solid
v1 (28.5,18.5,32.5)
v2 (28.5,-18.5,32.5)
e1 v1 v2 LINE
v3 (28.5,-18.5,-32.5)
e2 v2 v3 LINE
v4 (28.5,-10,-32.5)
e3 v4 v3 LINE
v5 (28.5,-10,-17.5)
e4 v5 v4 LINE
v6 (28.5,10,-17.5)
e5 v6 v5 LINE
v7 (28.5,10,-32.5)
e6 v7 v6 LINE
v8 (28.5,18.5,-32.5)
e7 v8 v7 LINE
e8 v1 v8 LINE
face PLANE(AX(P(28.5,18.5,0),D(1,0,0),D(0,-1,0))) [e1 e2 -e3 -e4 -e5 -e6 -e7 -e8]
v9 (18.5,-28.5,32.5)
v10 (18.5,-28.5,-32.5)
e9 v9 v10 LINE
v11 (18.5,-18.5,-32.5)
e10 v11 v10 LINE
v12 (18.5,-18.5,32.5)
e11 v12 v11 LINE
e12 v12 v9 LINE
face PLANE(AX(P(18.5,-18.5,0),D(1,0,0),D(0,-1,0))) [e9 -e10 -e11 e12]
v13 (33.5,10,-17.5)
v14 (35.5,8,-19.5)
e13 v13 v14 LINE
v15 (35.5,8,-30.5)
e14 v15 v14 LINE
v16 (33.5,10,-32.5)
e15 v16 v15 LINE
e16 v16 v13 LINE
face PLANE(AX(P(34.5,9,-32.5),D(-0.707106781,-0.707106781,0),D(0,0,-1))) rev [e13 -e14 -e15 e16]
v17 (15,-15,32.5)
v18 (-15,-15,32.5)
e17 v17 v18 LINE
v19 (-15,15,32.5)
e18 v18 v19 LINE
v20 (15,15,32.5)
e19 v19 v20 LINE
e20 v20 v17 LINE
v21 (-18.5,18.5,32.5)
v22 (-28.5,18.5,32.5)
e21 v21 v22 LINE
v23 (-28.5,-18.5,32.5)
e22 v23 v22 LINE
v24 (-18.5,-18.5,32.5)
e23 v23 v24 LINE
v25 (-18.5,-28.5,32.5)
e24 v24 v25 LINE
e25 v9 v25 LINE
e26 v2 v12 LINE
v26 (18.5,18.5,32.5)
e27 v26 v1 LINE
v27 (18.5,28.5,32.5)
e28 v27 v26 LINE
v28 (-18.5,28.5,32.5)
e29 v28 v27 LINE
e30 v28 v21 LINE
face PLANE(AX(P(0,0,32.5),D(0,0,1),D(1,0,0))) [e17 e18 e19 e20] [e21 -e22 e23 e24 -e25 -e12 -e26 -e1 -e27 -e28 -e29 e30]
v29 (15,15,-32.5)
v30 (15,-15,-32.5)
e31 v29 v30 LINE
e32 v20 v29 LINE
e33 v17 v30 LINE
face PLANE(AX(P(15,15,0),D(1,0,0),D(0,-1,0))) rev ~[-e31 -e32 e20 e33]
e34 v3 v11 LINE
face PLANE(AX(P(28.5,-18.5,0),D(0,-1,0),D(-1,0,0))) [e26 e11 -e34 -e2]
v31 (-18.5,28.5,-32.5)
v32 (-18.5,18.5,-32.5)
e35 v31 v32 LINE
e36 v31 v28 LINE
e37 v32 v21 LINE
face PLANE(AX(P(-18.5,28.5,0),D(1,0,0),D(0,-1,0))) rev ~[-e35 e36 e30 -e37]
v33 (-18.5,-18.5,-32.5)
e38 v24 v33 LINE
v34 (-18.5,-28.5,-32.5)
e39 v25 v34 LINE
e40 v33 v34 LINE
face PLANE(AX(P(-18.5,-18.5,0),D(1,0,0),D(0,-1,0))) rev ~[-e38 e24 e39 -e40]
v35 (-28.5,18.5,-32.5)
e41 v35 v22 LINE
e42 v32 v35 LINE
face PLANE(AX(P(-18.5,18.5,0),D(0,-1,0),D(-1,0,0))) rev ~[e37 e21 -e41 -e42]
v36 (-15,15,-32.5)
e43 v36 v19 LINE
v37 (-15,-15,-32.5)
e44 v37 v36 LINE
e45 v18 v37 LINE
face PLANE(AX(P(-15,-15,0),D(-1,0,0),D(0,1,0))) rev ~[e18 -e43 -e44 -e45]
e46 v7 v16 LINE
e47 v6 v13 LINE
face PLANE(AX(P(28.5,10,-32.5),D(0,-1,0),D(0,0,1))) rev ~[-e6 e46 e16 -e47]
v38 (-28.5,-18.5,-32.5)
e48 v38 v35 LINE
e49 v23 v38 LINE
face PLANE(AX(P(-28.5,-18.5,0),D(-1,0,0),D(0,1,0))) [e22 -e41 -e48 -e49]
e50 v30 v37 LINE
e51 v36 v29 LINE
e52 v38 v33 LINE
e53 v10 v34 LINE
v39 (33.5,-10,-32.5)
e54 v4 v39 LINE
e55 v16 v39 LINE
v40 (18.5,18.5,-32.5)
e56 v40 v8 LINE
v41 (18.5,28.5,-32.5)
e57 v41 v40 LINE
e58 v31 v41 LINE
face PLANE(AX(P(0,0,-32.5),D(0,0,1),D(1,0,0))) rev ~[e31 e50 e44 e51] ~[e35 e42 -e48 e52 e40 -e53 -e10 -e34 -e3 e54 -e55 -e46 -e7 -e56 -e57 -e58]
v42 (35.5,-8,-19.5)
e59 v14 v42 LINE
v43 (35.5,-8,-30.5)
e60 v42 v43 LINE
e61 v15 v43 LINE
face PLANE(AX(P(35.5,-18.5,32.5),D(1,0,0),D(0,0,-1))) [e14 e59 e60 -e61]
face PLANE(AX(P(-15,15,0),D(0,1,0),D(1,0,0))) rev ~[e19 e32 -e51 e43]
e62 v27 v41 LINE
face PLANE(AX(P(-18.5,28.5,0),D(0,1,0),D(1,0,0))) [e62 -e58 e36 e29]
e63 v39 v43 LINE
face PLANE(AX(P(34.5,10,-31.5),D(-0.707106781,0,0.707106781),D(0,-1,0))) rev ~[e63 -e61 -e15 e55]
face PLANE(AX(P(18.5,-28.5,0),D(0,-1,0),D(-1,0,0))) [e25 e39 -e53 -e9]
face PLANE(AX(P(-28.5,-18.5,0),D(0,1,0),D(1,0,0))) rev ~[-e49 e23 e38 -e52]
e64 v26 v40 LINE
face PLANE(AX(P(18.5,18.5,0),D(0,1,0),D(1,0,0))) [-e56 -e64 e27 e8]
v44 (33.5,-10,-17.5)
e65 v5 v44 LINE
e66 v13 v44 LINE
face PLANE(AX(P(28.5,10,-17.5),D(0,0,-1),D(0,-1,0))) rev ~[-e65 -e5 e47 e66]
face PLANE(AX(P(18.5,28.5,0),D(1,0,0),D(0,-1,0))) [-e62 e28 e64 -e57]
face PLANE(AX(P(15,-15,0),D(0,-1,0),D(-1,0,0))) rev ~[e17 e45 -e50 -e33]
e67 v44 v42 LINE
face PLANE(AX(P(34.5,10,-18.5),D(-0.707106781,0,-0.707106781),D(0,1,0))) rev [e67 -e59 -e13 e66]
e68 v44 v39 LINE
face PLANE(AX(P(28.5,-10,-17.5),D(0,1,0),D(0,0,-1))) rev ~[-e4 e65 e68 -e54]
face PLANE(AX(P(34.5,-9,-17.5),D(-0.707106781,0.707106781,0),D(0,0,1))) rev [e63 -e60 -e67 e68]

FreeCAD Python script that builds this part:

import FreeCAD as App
import Part
import Sketcher


def edges_at(feature, points):
    """Names of the edges that pass closest to the given points."""
    edges = feature.Shape.Edges
    near = lambda p: min(range(len(edges)), key=lambda i: edges[i].distToShape(Part.Vertex(*p))[0])
    return sorted({f"Edge{near(p) + 1}" for p in points})

doc = App.newDocument("Part")
body = doc.addObject("PartDesign::Body", "Body")

sketch1 = doc.addObject("Sketcher::SketchObject", "Sketch")
body.addObject(sketch1)
sketch1.AttachmentSupport = (doc.XY_Plane, [""])
sketch1.MapMode = "FlatFace"
sketch1.addGeometry(Part.LineSegment(App.Vector(18, 28, 0), App.Vector(-18, 28, 0)), False)
sketch1.addGeometry(Part.LineSegment(App.Vector(-18, 28, 0), App.Vector(-18, 18, 0)), False)
sketch1.addGeometry(Part.LineSegment(App.Vector(-18, 18, 0), App.Vector(-28, 18, 0)), False)
sketch1.addGeometry(Part.LineSegment(App.Vector(-28, 18, 0), App.Vector(-28, -18, 0)), False)
sketch1.addGeometry(Part.LineSegment(App.Vector(-28, -18, 0), App.Vector(-18, -18, 0)), False)
sketch1.addGeometry(Part.LineSegment(App.Vector(-18, -18, 0), App.Vector(-18, -28, 0)), False)
sketch1.addGeometry(Part.LineSegment(App.Vector(-18, -28, 0), App.Vector(18, -28, 0)), False)
sketch1.addGeometry(Part.LineSegment(App.Vector(18, -28, 0), App.Vector(18, -18, 0)), False)
sketch1.addGeometry(Part.LineSegment(App.Vector(18, -18, 0), App.Vector(28, -18, 0)), False)
sketch1.addGeometry(Part.LineSegment(App.Vector(28, -18, 0), App.Vector(28, 18, 0)), False)
sketch1.addGeometry(Part.LineSegment(App.Vector(28, 18, 0), App.Vector(18, 18, 0)), False)
sketch1.addGeometry(Part.LineSegment(App.Vector(18, 18, 0), App.Vector(18, 28, 0)), False)
sketch1.addGeometry(Part.LineSegment(App.Vector(-15, -15, 0), App.Vector(-15, 15, 0)), False)
sketch1.addGeometry(Part.LineSegment(App.Vector(-15, 15, 0), App.Vector(15, 15, 0)), False)
sketch1.addGeometry(Part.LineSegment(App.Vector(15, 15, 0), App.Vector(15, -15, 0)), False)
sketch1.addGeometry(Part.LineSegment(App.Vector(15, -15, 0), App.Vector(-15, -15, 0)), False)
sketch1.addConstraint(Sketcher.Constraint("Coincident", 0, 2, 1, 1))
sketch1.addConstraint(Sketcher.Constraint("Coincident", 1, 2, 2, 1))
sketch1.addConstraint(Sketcher.Constraint("Coincident", 2, 2, 3, 1))
sketch1.addConstraint(Sketcher.Constraint("Coincident", 3, 2, 4, 1))
sketch1.addConstraint(Sketcher.Constraint("Coincident", 4, 2, 5, 1))
sketch1.addConstraint(Sketcher.Constraint("Coincident", 5, 2, 6, 1))
sketch1.addConstraint(Sketcher.Constraint("Coincident", 6, 2, 7, 1))
sketch1.addConstraint(Sketcher.Constraint("Coincident", 7, 2, 8, 1))
sketch1.addConstraint(Sketcher.Constraint("Coincident", 8, 2, 9, 1))
sketch1.addConstraint(Sketcher.Constraint("Coincident", 9, 2, 10, 1))
sketch1.addConstraint(Sketcher.Constraint("Coincident", 10, 2, 11, 1))
sketch1.addConstraint(Sketcher.Constraint("Coincident", 11, 2, 0, 1))
sketch1.addConstraint(Sketcher.Constraint("Coincident", 12, 2, 13, 1))
sketch1.addConstraint(Sketcher.Constraint("Coincident", 13, 2, 14, 1))
sketch1.addConstraint(Sketcher.Constraint("Coincident", 14, 2, 15, 1))
sketch1.addConstraint(Sketcher.Constraint("Coincident", 15, 2, 12, 1))
sketch1.addConstraint(Sketcher.Constraint("Horizontal", 0))
sketch1.addConstraint(Sketcher.Constraint("Vertical", 1))
sketch1.addConstraint(Sketcher.Constraint("Horizontal", 2))
sketch1.addConstraint(Sketcher.Constraint("Vertical", 3))
sketch1.addConstraint(Sketcher.Constraint("Horizontal", 4))
sketch1.addConstraint(Sketcher.Constraint("Vertical", 5))
sketch1.addConstraint(Sketcher.Constraint("Horizontal", 6))
sketch1.addConstraint(Sketcher.Constraint("Vertical", 7))
sketch1.addConstraint(Sketcher.Constraint("Horizontal", 8))
sketch1.addConstraint(Sketcher.Constraint("Vertical", 9))
sketch1.addConstraint(Sketcher.Constraint("Horizontal", 10))
sketch1.addConstraint(Sketcher.Constraint("Vertical", 11))
sketch1.addConstraint(Sketcher.Constraint("Vertical", 12))
sketch1.addConstraint(Sketcher.Constraint("Horizontal", 13))
sketch1.addConstraint(Sketcher.Constraint("Vertical", 14))
sketch1.addConstraint(Sketcher.Constraint("Horizontal", 15))
sketch1.addConstraint(Sketcher.Constraint("Symmetric", 0, 2, 6, 2, -1, 1))
sketch1.addConstraint(Sketcher.Constraint("Symmetric", 2, 2, 8, 2, -1, 1))
sketch1.addConstraint(Sketcher.Constraint("Symmetric", 4, 2, 10, 2, -1, 1))
sketch1.addConstraint(Sketcher.Constraint("Symmetric", 12, 2, 14, 2, -1, 1))
sketch1.addConstraint(Sketcher.Constraint("Symmetric", 4, 2, 7, 2, -2))
sketch1.addConstraint(Sketcher.Constraint("Equal", 10, 1))
sketch1.addConstraint(Sketcher.Constraint("Equal", 6, 3))
sketch1.addConstraint(Sketcher.Constraint("Equal", 15, 12))
sketch1.addConstraint(Sketcher.Constraint("DistanceX", 2, 2, 2, 1, 10.0))
sketch1.addConstraint(Sketcher.Constraint("DistanceX", 13, 1, 13, 2, 30.0))
sketch1.addConstraint(Sketcher.Constraint("DistanceY", 5, 2, 0, 2, 57.0))
pad1 = doc.addObject("PartDesign::Pad", "Pad")
body.addObject(pad1)
pad1.Profile = sketch1
pad1.Length = 65
pad1.Midplane = True

sketch2 = doc.addObject("Sketcher::SketchObject", "Sketch001")
body.addObject(sketch2)
sketch2.AttachmentSupport = (doc.YZ_Plane, [""])
sketch2.MapMode = "FlatFace"
sketch2.AttachmentOffset = App.Placement(App.Vector(0, 0, 28.5), App.Rotation())
sketch2.addGeometry(Part.LineSegment(App.Vector(-10, -32, 0), App.Vector(10, -32, 0)), False)
sketch2.addGeometry(Part.LineSegment(App.Vector(10, -32, 0), App.Vector(10, -18, 0)), False)
sketch2.addGeometry(Part.LineSegment(App.Vector(10, -18, 0), App.Vector(-10, -18, 0)), False)
sketch2.addGeometry(Part.LineSegment(App.Vector(-10, -18, 0), App.Vector(-10, -32, 0)), False)
sketch2.addConstraint(Sketcher.Constraint("Coincident", 0, 2, 1, 1))
sketch2.addConstraint(Sketcher.Constraint("Coincident", 1, 2, 2, 1))
sketch2.addConstraint(Sketcher.Constraint("Coincident", 2, 2, 3, 1))
sketch2.addConstraint(Sketcher.Constraint("Coincident", 3, 2, 0, 1))
sketch2.addConstraint(Sketcher.Constraint("Horizontal", 0))
sketch2.addConstraint(Sketcher.Constraint("Vertical", 1))
sketch2.addConstraint(Sketcher.Constraint("Horizontal", 2))
sketch2.addConstraint(Sketcher.Constraint("Vertical", 3))
sketch2.addConstraint(Sketcher.Constraint("DistanceX", 0, 1, 0, 2, 20.0))
sketch2.addConstraint(Sketcher.Constraint("DistanceY", 1, 1, 1, 2, 15.0))
sketch2.addConstraint(Sketcher.Constraint("DistanceX", -1, 1, 0, 2, 10.0))
sketch2.addConstraint(Sketcher.Constraint("DistanceY", 0, 2, -1, 1, 32.5))
pad2 = doc.addObject("PartDesign::Pad", "Pad001")
body.addObject(pad2)
pad2.Profile = sketch2
pad2.Length = 7
doc.recompute()

chamfer = doc.addObject("PartDesign::Chamfer", "Chamfer")
body.addObject(chamfer)
chamfer.Base = (pad2, edges_at(pad2, [
    (35.5, 10, -25),
    (35.5, 0, -32.5),
    (35.5, -10, -25),
    (35.5, 0, -17.5),
]))
chamfer.Size = 2

doc.recompute()
